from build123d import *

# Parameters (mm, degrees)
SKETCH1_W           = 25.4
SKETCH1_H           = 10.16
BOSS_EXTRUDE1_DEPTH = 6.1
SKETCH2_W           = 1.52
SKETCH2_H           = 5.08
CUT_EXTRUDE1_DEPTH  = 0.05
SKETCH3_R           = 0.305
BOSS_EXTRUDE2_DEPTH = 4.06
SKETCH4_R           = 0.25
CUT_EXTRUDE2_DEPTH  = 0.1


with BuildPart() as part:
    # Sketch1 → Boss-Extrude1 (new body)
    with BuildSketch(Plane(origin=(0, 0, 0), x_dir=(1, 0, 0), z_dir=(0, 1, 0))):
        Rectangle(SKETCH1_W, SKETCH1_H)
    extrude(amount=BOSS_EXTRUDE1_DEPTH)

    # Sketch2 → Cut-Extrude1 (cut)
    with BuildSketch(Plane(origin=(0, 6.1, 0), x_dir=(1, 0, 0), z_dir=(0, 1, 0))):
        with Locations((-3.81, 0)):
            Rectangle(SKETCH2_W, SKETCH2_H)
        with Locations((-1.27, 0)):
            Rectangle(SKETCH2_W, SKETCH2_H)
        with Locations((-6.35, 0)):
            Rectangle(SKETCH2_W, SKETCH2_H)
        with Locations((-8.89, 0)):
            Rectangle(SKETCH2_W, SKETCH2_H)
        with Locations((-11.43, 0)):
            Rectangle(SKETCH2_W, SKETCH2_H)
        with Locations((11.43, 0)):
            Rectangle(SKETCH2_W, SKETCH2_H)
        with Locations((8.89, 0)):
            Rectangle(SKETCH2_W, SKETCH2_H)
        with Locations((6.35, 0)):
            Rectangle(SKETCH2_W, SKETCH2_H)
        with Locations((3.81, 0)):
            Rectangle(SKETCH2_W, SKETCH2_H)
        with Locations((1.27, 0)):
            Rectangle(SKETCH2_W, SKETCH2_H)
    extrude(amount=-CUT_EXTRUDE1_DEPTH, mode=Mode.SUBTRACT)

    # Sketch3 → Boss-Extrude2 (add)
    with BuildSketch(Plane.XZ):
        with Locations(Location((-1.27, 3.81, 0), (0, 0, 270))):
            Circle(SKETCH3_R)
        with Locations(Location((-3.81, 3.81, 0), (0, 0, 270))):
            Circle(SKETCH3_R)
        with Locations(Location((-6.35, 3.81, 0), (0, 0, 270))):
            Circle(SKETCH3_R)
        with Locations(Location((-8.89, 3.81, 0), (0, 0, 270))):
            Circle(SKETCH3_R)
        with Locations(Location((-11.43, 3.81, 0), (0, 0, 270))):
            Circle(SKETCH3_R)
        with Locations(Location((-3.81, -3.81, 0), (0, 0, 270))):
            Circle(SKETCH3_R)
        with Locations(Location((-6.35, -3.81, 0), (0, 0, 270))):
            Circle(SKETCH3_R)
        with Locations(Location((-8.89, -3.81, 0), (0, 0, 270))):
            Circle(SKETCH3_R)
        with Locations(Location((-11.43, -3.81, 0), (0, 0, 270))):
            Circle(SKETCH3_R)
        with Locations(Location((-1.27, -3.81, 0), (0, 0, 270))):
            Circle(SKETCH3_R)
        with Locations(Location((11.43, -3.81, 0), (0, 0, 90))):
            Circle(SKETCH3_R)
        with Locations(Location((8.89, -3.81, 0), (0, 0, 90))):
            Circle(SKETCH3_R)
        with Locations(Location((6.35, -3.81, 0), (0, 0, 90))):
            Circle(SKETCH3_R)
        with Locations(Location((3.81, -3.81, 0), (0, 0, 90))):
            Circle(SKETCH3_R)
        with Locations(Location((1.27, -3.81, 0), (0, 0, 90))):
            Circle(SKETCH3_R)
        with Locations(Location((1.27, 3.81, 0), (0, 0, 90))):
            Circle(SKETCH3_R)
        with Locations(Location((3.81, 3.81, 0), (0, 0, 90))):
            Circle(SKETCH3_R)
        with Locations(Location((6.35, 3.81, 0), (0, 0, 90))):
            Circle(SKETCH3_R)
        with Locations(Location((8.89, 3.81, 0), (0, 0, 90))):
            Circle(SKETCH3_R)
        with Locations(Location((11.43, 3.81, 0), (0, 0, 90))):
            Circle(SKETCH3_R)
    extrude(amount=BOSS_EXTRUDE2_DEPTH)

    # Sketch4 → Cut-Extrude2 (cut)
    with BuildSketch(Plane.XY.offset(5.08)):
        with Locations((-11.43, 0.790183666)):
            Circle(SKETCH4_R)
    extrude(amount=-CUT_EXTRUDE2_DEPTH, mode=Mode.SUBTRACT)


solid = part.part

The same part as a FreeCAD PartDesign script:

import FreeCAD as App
import Part
import Sketcher
from FreeCAD import Vector

doc = App.newDocument("Part")
body = doc.addObject("PartDesign::Body", "Body")

sketch1 = body.newObject("Sketcher::SketchObject", "Sketch")
sketch1.AttachmentSupport = (doc.getObject("XZ_Plane"), [""])
sketch1.MapMode = "FlatFace"
sketch1.addGeometry(Part.LineSegment(Vector(-13, -5, 0), Vector(-13, 5, 0)), False)
sketch1.addGeometry(Part.LineSegment(Vector(-13, 5, 0), Vector(13, 5, 0)), False)
sketch1.addGeometry(Part.LineSegment(Vector(13, 5, 0), Vector(13, -5, 0)), False)
sketch1.addGeometry(Part.LineSegment(Vector(13, -5, 0), Vector(-13, -5, 0)), False)
sketch1.addConstraint(Sketcher.Constraint("Coincident", 0, 2, 1, 1))
sketch1.addConstraint(Sketcher.Constraint("Coincident", 1, 2, 2, 1))
sketch1.addConstraint(Sketcher.Constraint("Coincident", 2, 2, 3, 1))
sketch1.addConstraint(Sketcher.Constraint("Coincident", 3, 2, 0, 1))
sketch1.addConstraint(Sketcher.Constraint("Vertical", 0))
sketch1.addConstraint(Sketcher.Constraint("Horizontal", 1))
sketch1.addConstraint(Sketcher.Constraint("Vertical", 2))
sketch1.addConstraint(Sketcher.Constraint("Horizontal", 3))
sketch1.addConstraint(Sketcher.Constraint("Symmetric", 0, 2, 2, 2, -1, 1))
sketch1.addConstraint(Sketcher.Constraint("DistanceX", 1, 1, 1, 2, 25.4))
sketch1.addConstraint(Sketcher.Constraint("DistanceY", 0, 1, 0, 2, 10.16))
pad1 = body.newObject("PartDesign::Pad", "Pad")
pad1.Profile = sketch1
pad1.Length = 6.1
pad1.Reversed = True

sketch2 = body.newObject("Sketcher::SketchObject", "Sketch001")
sketch2.AttachmentSupport = (doc.getObject("XZ_Plane"), [""])
sketch2.MapMode = "FlatFace"
sketch2.AttachmentOffset = App.Placement(Vector(0, 0, -6.1), App.Rotation())
sketch2.addGeometry(Part.LineSegment(Vector(-4.6, -2.5, 0), Vector(-4.6, 2.5, 0)), False)
sketch2.addGeometry(Part.LineSegment(Vector(-4.6, 2.5, 0), Vector(-3, 2.5, 0)), False)
sketch2.addGeometry(Part.LineSegment(Vector(-3, 2.5, 0), Vector(-3, -2.5, 0)), False)
sketch2.addGeometry(Part.LineSegment(Vector(-3, -2.5, 0), Vector(-4.6, -2.5, 0)), False)
sketch2.addGeometry(Part.LineSegment(Vector(-2, -2.5, 0), Vector(-2, 2.5, 0)), False)
sketch2.addGeometry(Part.LineSegment(Vector(-2, 2.5, 0), Vector(-0.5, 2.5, 0)), False)
sketch2.addGeometry(Part.LineSegment(Vector(-0.5, 2.5, 0), Vector(-0.5, -2.5, 0)), False)
sketch2.addGeometry(Part.LineSegment(Vector(-0.5, -2.5, 0), Vector(-2, -2.5, 0)), False)
sketch2.addGeometry(Part.LineSegment(Vector(-7.1, -2.5, 0), Vector(-7.1, 2.5, 0)), False)
sketch2.addGeometry(Part.LineSegment(Vector(-7.1, 2.5, 0), Vector(-5.6, 2.5, 0)), False)
sketch2.addGeometry(Part.LineSegment(Vector(-5.6, 2.5, 0), Vector(-5.6, -2.5, 0)), False)
sketch2.addGeometry(Part.LineSegment(Vector(-5.6, -2.5, 0), Vector(-7.1, -2.5, 0)), False)
sketch2.addGeometry(Part.LineSegment(Vector(-9.7, -2.5, 0), Vector(-9.7, 2.5, 0)), False)
sketch2.addGeometry(Part.LineSegment(Vector(-9.7, 2.5, 0), Vector(-8.1, 2.5, 0)), False)
sketch2.addGeometry(Part.LineSegment(Vector(-8.1, 2.5, 0), Vector(-8.1, -2.5, 0)), False)
sketch2.addGeometry(Part.LineSegment(Vector(-8.1, -2.5, 0), Vector(-9.7, -2.5, 0)), False)
sketch2.addGeometry(Part.LineSegment(Vector(-12.2, -2.5, 0), Vector(-12.2, 2.5, 0)), False)
sketch2.addGeometry(Part.LineSegment(Vector(-12.2, 2.5, 0), Vector(-10.7, 2.5, 0)), False)
sketch2.addGeometry(Part.LineSegment(Vector(-10.7, 2.5, 0), Vector(-10.7, -2.5, 0)), False)
sketch2.addGeometry(Part.LineSegment(Vector(-10.7, -2.5, 0), Vector(-12.2, -2.5, 0)), False)
sketch2.addGeometry(Part.LineSegment(Vector(10.7, -2.5, 0), Vector(10.7, 2.5, 0)), False)
sketch2.addGeometry(Part.LineSegment(Vector(10.7, 2.5, 0), Vector(12.2, 2.5, 0)), False)
sketch2.addGeometry(Part.LineSegment(Vector(12.2, 2.5, 0), Vector(12.2, -2.5, 0)), False)
sketch2.addGeometry(Part.LineSegment(Vector(12.2, -2.5, 0), Vector(10.7, -2.5, 0)), False)
sketch2.addGeometry(Part.LineSegment(Vector(8.1, -2.5, 0), Vector(8.1, 2.5, 0)), False)
sketch2.addGeometry(Part.LineSegment(Vector(8.1, 2.5, 0), Vector(9.7, 2.5, 0)), False)
sketch2.addGeometry(Part.LineSegment(Vector(9.7, 2.5, 0), Vector(9.7, -2.5, 0)), False)
sketch2.addGeometry(Part.LineSegment(Vector(9.7, -2.5, 0), Vector(8.1, -2.5, 0)), False)
sketch2.addGeometry(Part.LineSegment(Vector(5.6, -2.5, 0), Vector(5.6, 2.5, 0)), False)
sketch2.addGeometry(Part.LineSegment(Vector(5.6, 2.5, 0), Vector(7.1, 2.5, 0)), False)
sketch2.addGeometry(Part.LineSegment(Vector(7.1, 2.5, 0), Vector(7.1, -2.5, 0)), False)
sketch2.addGeometry(Part.LineSegment(Vector(7.1, -2.5, 0), Vector(5.6, -2.5, 0)), False)
sketch2.addGeometry(Part.LineSegment(Vector(3, -2.5, 0), Vector(3, 2.5, 0)), False)
sketch2.addGeometry(Part.LineSegment(Vector(3, 2.5, 0), Vector(4.6, 2.5, 0)), False)
sketch2.addGeometry(Part.LineSegment(Vector(4.6, 2.5, 0), Vector(4.6, -2.5, 0)), False)
sketch2.addGeometry(Part.LineSegment(Vector(4.6, -2.5, 0), Vector(3, -2.5, 0)), False)
sketch2.addGeometry(Part.LineSegment(Vector(0.5, -2.5, 0), Vector(0.5, 2.5, 0)), False)
sketch2.addGeometry(Part.LineSegment(Vector(0.5, 2.5, 0), Vector(2, 2.5, 0)), False)
sketch2.addGeometry(Part.LineSegment(Vector(2, 2.5, 0), Vector(2, -2.5, 0)), False)
sketch2.addGeometry(Part.LineSegment(Vector(2, -2.5, 0), Vector(0.5, -2.5, 0)), False)
sketch2.addConstraint(Sketcher.Constraint("Coincident", 0, 2, 1, 1))
sketch2.addConstraint(Sketcher.Constraint("Coincident", 1, 2, 2, 1))
sketch2.addConstraint(Sketcher.Constraint("Coincident", 2, 2, 3, 1))
sketch2.addConstraint(Sketcher.Constraint("Coincident", 3, 2, 0, 1))
sketch2.addConstraint(Sketcher.Constraint("Coincident", 4, 2, 5, 1))
sketch2.addConstraint(Sketcher.Constraint("Coincident", 5, 2, 6, 1))
sketch2.addConstraint(Sketcher.Constraint("Coincident", 6, 2, 7, 1))
sketch2.addConstraint(Sketcher.Constraint("Coincident", 7, 2, 4, 1))
sketch2.addConstraint(Sketcher.Constraint("Coincident", 8, 2, 9, 1))
sketch2.addConstraint(Sketcher.Constraint("Coincident", 9, 2, 10, 1))
sketch2.addConstraint(Sketcher.Constraint("Coincident", 10, 2, 11, 1))
sketch2.addConstraint(Sketcher.Constraint("Coincident", 11, 2, 8, 1))
sketch2.addConstraint(Sketcher.Constraint("Coincident", 12, 2, 13, 1))
sketch2.addConstraint(Sketcher.Constraint("Coincident", 13, 2, 14, 1))
sketch2.addConstraint(Sketcher.Constraint("Coincident", 14, 2, 15, 1))
sketch2.addConstraint(Sketcher.Constraint("Coincident", 15, 2, 12, 1))
sketch2.addConstraint(Sketcher.Constraint("Coincident", 16, 2, 17, 1))
sketch2.addConstraint(Sketcher.Constraint("Coincident", 17, 2, 18, 1))
sketch2.addConstraint(Sketcher.Constraint("Coincident", 18, 2, 19, 1))
sketch2.addConstraint(Sketcher.Constraint("Coincident", 19, 2, 16, 1))
sketch2.addConstraint(Sketcher.Constraint("Coincident", 20, 2, 21, 1))
sketch2.addConstraint(Sketcher.Constraint("Coincident", 21, 2, 22, 1))
sketch2.addConstraint(Sketcher.Constraint("Coincident", 22, 2, 23, 1))
sketch2.addConstraint(Sketcher.Constraint("Coincident", 23, 2, 20, 1))
sketch2.addConstraint(Sketcher.Constraint("Coincident", 24, 2, 25, 1))
sketch2.addConstraint(Sketcher.Constraint("Coincident", 25, 2, 26, 1))
sketch2.addConstraint(Sketcher.Constraint("Coincident", 26, 2, 27, 1))
sketch2.addConstraint(Sketcher.Constraint("Coincident", 27, 2, 24, 1))
sketch2.addConstraint(Sketcher.Constraint("Coincident", 28, 2, 29, 1))
sketch2.addConstraint(Sketcher.Constraint("Coincident", 29, 2, 30, 1))
sketch2.addConstraint(Sketcher.Constraint("Coincident", 30, 2, 31, 1))
sketch2.addConstraint(Sketcher.Constraint("Coincident", 31, 2, 28, 1))
sketch2.addConstraint(Sketcher.Constraint("Coincident", 32, 2, 33, 1))
sketch2.addConstraint(Sketcher.Constraint("Coincident", 33, 2, 34, 1))
sketch2.addConstraint(Sketcher.Constraint("Coincident", 34, 2, 35, 1))
sketch2.addConstraint(Sketcher.Constraint("Coincident", 35, 2, 32, 1))
sketch2.addConstraint(Sketcher.Constraint("Coincident", 36, 2, 37, 1))
sketch2.addConstraint(Sketcher.Constraint("Coincident", 37, 2, 38, 1))
sketch2.addConstraint(Sketcher.Constraint("Coincident", 38, 2, 39, 1))
sketch2.addConstraint(Sketcher.Constraint("Coincident", 39, 2, 36, 1))
sketch2.addConstraint(Sketcher.Constraint("Vertical", 0))
sketch2.addConstraint(Sketcher.Constraint("Horizontal", 1))
sketch2.addConstraint(Sketcher.Constraint("Vertical", 2))
sketch2.addConstraint(Sketcher.Constraint("Horizontal", 3))
sketch2.addConstraint(Sketcher.Constraint("Vertical", 4))
sketch2.addConstraint(Sketcher.Constraint("Horizontal", 5))
sketch2.addConstraint(Sketcher.Constraint("Vertical", 6))
sketch2.addConstraint(Sketcher.Constraint("Horizontal", 7))
sketch2.addConstraint(Sketcher.Constraint("Vertical", 8))
sketch2.addConstraint(Sketcher.Constraint("Horizontal", 9))
sketch2.addConstraint(Sketcher.Constraint("Vertical", 10))
sketch2.addConstraint(Sketcher.Constraint("Horizontal", 11))
sketch2.addConstraint(Sketcher.Constraint("Vertical", 12))
sketch2.addConstraint(Sketcher.Constraint("Horizontal", 13))
sketch2.addConstraint(Sketcher.Constraint("Vertical", 14))
sketch2.addConstraint(Sketcher.Constraint("Horizontal", 15))
sketch2.addConstraint(Sketcher.Constraint("Vertical", 16))
sketch2.addConstraint(Sketcher.Constraint("Horizontal", 17))
sketch2.addConstraint(Sketcher.Constraint("Vertical", 18))
sketch2.addConstraint(Sketcher.Constraint("Horizontal", 19))
sketch2.addConstraint(Sketcher.Constraint("Vertical", 20))
sketch2.addConstraint(Sketcher.Constraint("Horizontal", 21))
sketch2.addConstraint(Sketcher.Constraint("Vertical", 22))
sketch2.addConstraint(Sketcher.Constraint("Horizontal", 23))
sketch2.addConstraint(Sketcher.Constraint("Vertical", 24))
sketch2.addConstraint(Sketcher.Constraint("Horizontal", 25))
sketch2.addConstraint(Sketcher.Constraint("Vertical", 26))
sketch2.addConstraint(Sketcher.Constraint("Horizontal", 27))
sketch2.addConstraint(Sketcher.Constraint("Vertical", 28))
sketch2.addConstraint(Sketcher.Constraint("Horizontal", 29))
sketch2.addConstraint(Sketcher.Constraint("Vertical", 30))
sketch2.addConstraint(Sketcher.Constraint("Horizontal", 31))
sketch2.addConstraint(Sketcher.Constraint("Vertical", 32))
sketch2.addConstraint(Sketcher.Constraint("Horizontal", 33))
sketch2.addConstraint(Sketcher.Constraint("Vertical", 34))
sketch2.addConstraint(Sketcher.Constraint("Horizontal", 35))
sketch2.addConstraint(Sketcher.Constraint("Vertical", 36))
sketch2.addConstraint(Sketcher.Constraint("Horizontal", 37))
sketch2.addConstraint(Sketcher.Constraint("Vertical", 38))
sketch2.addConstraint(Sketcher.Constraint("Horizontal", 39))
sketch2.addConstraint(Sketcher.Constraint("Symmetric", 18, 2, 20, 2, -1, 1))
sketch2.addConstraint(Sketcher.Constraint("Symmetric", 16, 2, 22, 2, -1, 1))
sketch2.addConstraint(Sketcher.Constraint("Symmetric", 14, 2, 24, 2, -1, 1))
sketch2.addConstraint(Sketcher.Constraint("Symmetric", 12, 2, 26, 2, -1, 1))
sketch2.addConstraint(Sketcher.Constraint("Symmetric", 10, 2, 28, 2, -1, 1))
sketch2.addConstraint(Sketcher.Constraint("Symmetric", 8, 2, 30, 2, -1, 1))
sketch2.addConstraint(Sketcher.Constraint("Symmetric", 2, 2, 32, 2, -1, 1))
sketch2.addConstraint(Sketcher.Constraint("Symmetric", 0, 2, 34, 2, -1, 1))
sketch2.addConstraint(Sketcher.Constraint("Symmetric", 6, 2, 36, 2, -1, 1))
sketch2.addConstraint(Sketcher.Constraint("Symmetric", 4, 2, 38, 2, -1, 1))
sketch2.addConstraint(Sketcher.Constraint("Horizontal", 1, 2, 4, 2))
sketch2.addConstraint(Sketcher.Constraint("Horizontal", 3, 2, 6, 2))
sketch2.addConstraint(Sketcher.Constraint("Horizontal", 5, 2, 8, 2))
sketch2.addConstraint(Sketcher.Constraint("Horizontal", 7, 2, 10, 2))
sketch2.addConstraint(Sketcher.Constraint("Horizontal", 9, 2, 12, 2))
sketch2.addConstraint(Sketcher.Constraint("Horizontal", 11, 2, 14, 2))
sketch2.addConstraint(Sketcher.Constraint("Horizontal", 13, 2, 16, 2))
sketch2.addConstraint(Sketcher.Constraint("Horizontal", 15, 2, 18, 2))
sketch2.addConstraint(Sketcher.Constraint("Horizontal", 17, 2, 20, 2))
sketch2.addConstraint(Sketcher.Constraint("Equal", 3, 5))
sketch2.addConstraint(Sketcher.Constraint("Equal", 7, 9))
sketch2.addConstraint(Sketcher.Constraint("Equal", 11, 13))
sketch2.addConstraint(Sketcher.Constraint("Equal", 15, 17))
sketch2.addConstraint(Sketcher.Constraint("DistanceX", 1, 1, 1, 2, 1.52))
sketch2.addConstraint(Sketcher.Constraint("DistanceY", 0, 1, 0, 2, 5.08))
sketch2.addConstraint(Sketcher.Constraint("DistanceX", 4, 2, 20, 2, 12.7))
sketch2.addConstraint(Sketcher.Constraint("DistanceX", 5, 2, 28, 2, 6.1))
sketch2.addConstraint(Sketcher.Constraint("DistanceX", 0, 2, -1, 1, 4.57))
sketch2.addConstraint(Sketcher.Constraint("DistanceX", 4, 2, -1, 1, 2.03))
sketch2.addConstraint(Sketcher.Constraint("DistanceX", 12, 2, -1, 1, 9.65))
pocket1 = body.newObject("PartDesign::Pocket", "Pocket")
pocket1.Profile = sketch2
pocket1.Length = 0.05
pocket1.Reversed = True

sketch3 = body.newObject("Sketcher::SketchObject", "Sketch002")
sketch3.AttachmentSupport = (doc.getObject("XZ_Plane"), [""])
sketch3.MapMode = "FlatFace"
sketch3.addGeometry(Part.Circle(Vector(-1.27, 3.81, 0), Vector(0, 0, 1), 0.3), False)
sketch3.addGeometry(Part.Circle(Vector(-3.81, 3.81, 0), Vector(0, 0, 1), 0.3), False)
sketch3.addGeometry(Part.Circle(Vector(-6.35, 3.81, 0), Vector(0, 0, 1), 0.3), False)
sketch3.addGeometry(Part.Circle(Vector(-8.89, 3.81, 0), Vector(0, 0, 1), 0.3), False)
sketch3.addGeometry(Part.Circle(Vector(-11.43, 3.81, 0), Vector(0, 0, 1), 0.3), False)
sketch3.addGeometry(Part.Circle(Vector(-3.81, -3.81, 0), Vector(0, 0, 1), 0.3), False)
sketch3.addGeometry(Part.Circle(Vector(-6.35, -3.81, 0), Vector(0, 0, 1), 0.3), False)
sketch3.addGeometry(Part.Circle(Vector(-8.89, -3.81, 0), Vector(0, 0, 1), 0.3), False)
sketch3.addGeometry(Part.Circle(Vector(-11.43, -3.81, 0), Vector(0, 0, 1), 0.3), False)
sketch3.addGeometry(Part.Circle(Vector(-1.27, -3.81, 0), Vector(0, 0, 1), 0.3), False)
sketch3.addGeometry(Part.Circle(Vector(11.43, -3.81, 0), Vector(0, 0, 1), 0.3), False)
sketch3.addGeometry(Part.Circle(Vector(8.89, -3.81, 0), Vector(0, 0, 1), 0.3), False)
sketch3.addGeometry(Part.Circle(Vector(6.35, -3.81, 0), Vector(0, 0, 1), 0.3), False)
sketch3.addGeometry(Part.Circle(Vector(3.81, -3.81, 0), Vector(0, 0, 1), 0.3), False)
sketch3.addGeometry(Part.Circle(Vector(1.27, -3.81, 0), Vector(0, 0, 1), 0.3), False)
sketch3.addGeometry(Part.Circle(Vector(1.27, 3.81, 0), Vector(0, 0, 1), 0.3), False)
sketch3.addGeometry(Part.Circle(Vector(3.81, 3.81, 0), Vector(0, 0, 1), 0.3), False)
sketch3.addGeometry(Part.Circle(Vector(6.35, 3.81, 0), Vector(0, 0, 1), 0.3), False)
sketch3.addGeometry(Part.Circle(Vector(8.89, 3.81, 0), Vector(0, 0, 1), 0.3), False)
sketch3.addGeometry(Part.Circle(Vector(11.43, 3.81, 0), Vector(0, 0, 1), 0.3), False)
sketch3.addConstraint(Sketcher.Constraint("Equal", 0, 1))
sketch3.addConstraint(Sketcher.Constraint("Equal", 1, 2))
sketch3.addConstraint(Sketcher.Constraint("Equal", 2, 3))
sketch3.addConstraint(Sketcher.Constraint("Equal", 3, 4))
sketch3.addConstraint(Sketcher.Constraint("Equal", 4, 5))
sketch3.addConstraint(Sketcher.Constraint("Equal", 5, 6))
sketch3.addConstraint(Sketcher.Constraint("Equal", 6, 7))
sketch3.addConstraint(Sketcher.Constraint("Equal", 7, 8))
sketch3.addConstraint(Sketcher.Constraint("Equal", 8, 9))
sketch3.addConstraint(Sketcher.Constraint("Equal", 9, 10))
sketch3.addConstraint(Sketcher.Constraint("Equal", 10, 11))
sketch3.addConstraint(Sketcher.Constraint("Equal", 11, 12))
sketch3.addConstraint(Sketcher.Constraint("Equal", 12, 13))
sketch3.addConstraint(Sketcher.Constraint("Equal", 13, 14))
sketch3.addConstraint(Sketcher.Constraint("Equal", 14, 15))
sketch3.addConstraint(Sketcher.Constraint("Equal", 15, 16))
sketch3.addConstraint(Sketcher.Constraint("Equal", 16, 17))
sketch3.addConstraint(Sketcher.Constraint("Equal", 17, 18))
sketch3.addConstraint(Sketcher.Constraint("Equal", 18, 19))
sketch3.addConstraint(Sketcher.Constraint("Symmetric", 4, 3, 10, 3, -1, 1))
sketch3.addConstraint(Sketcher.Constraint("Symmetric", 3, 3, 11, 3, -1, 1))
sketch3.addConstraint(Sketcher.Constraint("Symmetric", 2, 3, 12, 3, -1, 1))
sketch3.addConstraint(Sketcher.Constraint("Symmetric", 1, 3, 13, 3, -1, 1))
sketch3.addConstraint(Sketcher.Constraint("Symmetric", 0, 3, 14, 3, -1, 1))
sketch3.addConstraint(Sketcher.Constraint("Symmetric", 9, 3, 15, 3, -1, 1))
sketch3.addConstraint(Sketcher.Constraint("Symmetric", 5, 3, 16, 3, -1, 1))
sketch3.addConstraint(Sketcher.Constraint("Symmetric", 6, 3, 17, 3, -1, 1))
sketch3.addConstraint(Sketcher.Constraint("Symmetric", 7, 3, 18, 3, -1, 1))
sketch3.addConstraint(Sketcher.Constraint("Symmetric", 8, 3, 19, 3, -1, 1))
sketch3.addConstraint(Sketcher.Constraint("Symmetric", 8, 3, 10, 3, -2))
sketch3.addConstraint(Sketcher.Constraint("Symmetric", 7, 3, 11, 3, -2))
sketch3.addConstraint(Sketcher.Constraint("Symmetric", 6, 3, 12, 3, -2))
sketch3.addConstraint(Sketcher.Constraint("Symmetric", 5, 3, 13, 3, -2))
sketch3.addConstraint(Sketcher.Constraint("Symmetric", 9, 3, 14, 3, -2))
sketch3.addConstraint(Sketcher.Constraint("Horizontal", 0, 3, 1, 3))
sketch3.addConstraint(Sketcher.Constraint("Horizontal", 1, 3, 2, 3))
sketch3.addConstraint(Sketcher.Constraint("Horizontal", 2, 3, 3, 3))
sketch3.addConstraint(Sketcher.Constraint("Horizontal", 3, 3, 4, 3))
sketch3.addConstraint(Sketcher.Constraint("Diameter", 0, 0.61))
sketch3.addConstraint(Sketcher.Constraint("DistanceX", 9, 3, 10, 3, 12.7))
sketch3.addConstraint(Sketcher.Constraint("DistanceX", 5, 3, 11, 3, 12.7))
sketch3.addConstraint(Sketcher.Constraint("DistanceX", 0, 3, -1, 1, 1.27))
sketch3.addConstraint(Sketcher.Constraint("DistanceY", -1, 1, 0, 3, 3.81))
sketch3.addConstraint(Sketcher.Constraint("DistanceX", 1, 3, -1, 1, 3.81))
sketch3.addConstraint(Sketcher.Constraint("DistanceX", 2, 3, -1, 1, 6.35))
pad2 = body.newObject("PartDesign::Pad", "Pad001")
pad2.Profile = sketch3
pad2.Length = 4.06

sketch4 = body.newObject("Sketcher::SketchObject", "Sketch003")
sketch4.AttachmentSupport = (doc.getObject("XY_Plane"), [""])
sketch4.MapMode = "FlatFace"
sketch4.AttachmentOffset = App.Placement(Vector(0, 0, 5.08), App.Rotation())
sketch4.addGeometry(Part.Circle(Vector(-11.43, 0.79, 0), Vector(0, 0, 1), 0.25), False)
sketch4.addConstraint(Sketcher.Constraint("Diameter", 0, 0.5))
sketch4.addConstraint(Sketcher.Constraint("DistanceX", 0, 3, -1, 1, 11.43))
sketch4.addConstraint(Sketcher.Constraint("DistanceY", -1, 1, 0, 3, 0.790184))
pocket2 = body.newObject("PartDesign::Pocket", "Pocket001")
pocket2.Profile = sketch4
pocket2.Length = 0.1

doc.recompute()
